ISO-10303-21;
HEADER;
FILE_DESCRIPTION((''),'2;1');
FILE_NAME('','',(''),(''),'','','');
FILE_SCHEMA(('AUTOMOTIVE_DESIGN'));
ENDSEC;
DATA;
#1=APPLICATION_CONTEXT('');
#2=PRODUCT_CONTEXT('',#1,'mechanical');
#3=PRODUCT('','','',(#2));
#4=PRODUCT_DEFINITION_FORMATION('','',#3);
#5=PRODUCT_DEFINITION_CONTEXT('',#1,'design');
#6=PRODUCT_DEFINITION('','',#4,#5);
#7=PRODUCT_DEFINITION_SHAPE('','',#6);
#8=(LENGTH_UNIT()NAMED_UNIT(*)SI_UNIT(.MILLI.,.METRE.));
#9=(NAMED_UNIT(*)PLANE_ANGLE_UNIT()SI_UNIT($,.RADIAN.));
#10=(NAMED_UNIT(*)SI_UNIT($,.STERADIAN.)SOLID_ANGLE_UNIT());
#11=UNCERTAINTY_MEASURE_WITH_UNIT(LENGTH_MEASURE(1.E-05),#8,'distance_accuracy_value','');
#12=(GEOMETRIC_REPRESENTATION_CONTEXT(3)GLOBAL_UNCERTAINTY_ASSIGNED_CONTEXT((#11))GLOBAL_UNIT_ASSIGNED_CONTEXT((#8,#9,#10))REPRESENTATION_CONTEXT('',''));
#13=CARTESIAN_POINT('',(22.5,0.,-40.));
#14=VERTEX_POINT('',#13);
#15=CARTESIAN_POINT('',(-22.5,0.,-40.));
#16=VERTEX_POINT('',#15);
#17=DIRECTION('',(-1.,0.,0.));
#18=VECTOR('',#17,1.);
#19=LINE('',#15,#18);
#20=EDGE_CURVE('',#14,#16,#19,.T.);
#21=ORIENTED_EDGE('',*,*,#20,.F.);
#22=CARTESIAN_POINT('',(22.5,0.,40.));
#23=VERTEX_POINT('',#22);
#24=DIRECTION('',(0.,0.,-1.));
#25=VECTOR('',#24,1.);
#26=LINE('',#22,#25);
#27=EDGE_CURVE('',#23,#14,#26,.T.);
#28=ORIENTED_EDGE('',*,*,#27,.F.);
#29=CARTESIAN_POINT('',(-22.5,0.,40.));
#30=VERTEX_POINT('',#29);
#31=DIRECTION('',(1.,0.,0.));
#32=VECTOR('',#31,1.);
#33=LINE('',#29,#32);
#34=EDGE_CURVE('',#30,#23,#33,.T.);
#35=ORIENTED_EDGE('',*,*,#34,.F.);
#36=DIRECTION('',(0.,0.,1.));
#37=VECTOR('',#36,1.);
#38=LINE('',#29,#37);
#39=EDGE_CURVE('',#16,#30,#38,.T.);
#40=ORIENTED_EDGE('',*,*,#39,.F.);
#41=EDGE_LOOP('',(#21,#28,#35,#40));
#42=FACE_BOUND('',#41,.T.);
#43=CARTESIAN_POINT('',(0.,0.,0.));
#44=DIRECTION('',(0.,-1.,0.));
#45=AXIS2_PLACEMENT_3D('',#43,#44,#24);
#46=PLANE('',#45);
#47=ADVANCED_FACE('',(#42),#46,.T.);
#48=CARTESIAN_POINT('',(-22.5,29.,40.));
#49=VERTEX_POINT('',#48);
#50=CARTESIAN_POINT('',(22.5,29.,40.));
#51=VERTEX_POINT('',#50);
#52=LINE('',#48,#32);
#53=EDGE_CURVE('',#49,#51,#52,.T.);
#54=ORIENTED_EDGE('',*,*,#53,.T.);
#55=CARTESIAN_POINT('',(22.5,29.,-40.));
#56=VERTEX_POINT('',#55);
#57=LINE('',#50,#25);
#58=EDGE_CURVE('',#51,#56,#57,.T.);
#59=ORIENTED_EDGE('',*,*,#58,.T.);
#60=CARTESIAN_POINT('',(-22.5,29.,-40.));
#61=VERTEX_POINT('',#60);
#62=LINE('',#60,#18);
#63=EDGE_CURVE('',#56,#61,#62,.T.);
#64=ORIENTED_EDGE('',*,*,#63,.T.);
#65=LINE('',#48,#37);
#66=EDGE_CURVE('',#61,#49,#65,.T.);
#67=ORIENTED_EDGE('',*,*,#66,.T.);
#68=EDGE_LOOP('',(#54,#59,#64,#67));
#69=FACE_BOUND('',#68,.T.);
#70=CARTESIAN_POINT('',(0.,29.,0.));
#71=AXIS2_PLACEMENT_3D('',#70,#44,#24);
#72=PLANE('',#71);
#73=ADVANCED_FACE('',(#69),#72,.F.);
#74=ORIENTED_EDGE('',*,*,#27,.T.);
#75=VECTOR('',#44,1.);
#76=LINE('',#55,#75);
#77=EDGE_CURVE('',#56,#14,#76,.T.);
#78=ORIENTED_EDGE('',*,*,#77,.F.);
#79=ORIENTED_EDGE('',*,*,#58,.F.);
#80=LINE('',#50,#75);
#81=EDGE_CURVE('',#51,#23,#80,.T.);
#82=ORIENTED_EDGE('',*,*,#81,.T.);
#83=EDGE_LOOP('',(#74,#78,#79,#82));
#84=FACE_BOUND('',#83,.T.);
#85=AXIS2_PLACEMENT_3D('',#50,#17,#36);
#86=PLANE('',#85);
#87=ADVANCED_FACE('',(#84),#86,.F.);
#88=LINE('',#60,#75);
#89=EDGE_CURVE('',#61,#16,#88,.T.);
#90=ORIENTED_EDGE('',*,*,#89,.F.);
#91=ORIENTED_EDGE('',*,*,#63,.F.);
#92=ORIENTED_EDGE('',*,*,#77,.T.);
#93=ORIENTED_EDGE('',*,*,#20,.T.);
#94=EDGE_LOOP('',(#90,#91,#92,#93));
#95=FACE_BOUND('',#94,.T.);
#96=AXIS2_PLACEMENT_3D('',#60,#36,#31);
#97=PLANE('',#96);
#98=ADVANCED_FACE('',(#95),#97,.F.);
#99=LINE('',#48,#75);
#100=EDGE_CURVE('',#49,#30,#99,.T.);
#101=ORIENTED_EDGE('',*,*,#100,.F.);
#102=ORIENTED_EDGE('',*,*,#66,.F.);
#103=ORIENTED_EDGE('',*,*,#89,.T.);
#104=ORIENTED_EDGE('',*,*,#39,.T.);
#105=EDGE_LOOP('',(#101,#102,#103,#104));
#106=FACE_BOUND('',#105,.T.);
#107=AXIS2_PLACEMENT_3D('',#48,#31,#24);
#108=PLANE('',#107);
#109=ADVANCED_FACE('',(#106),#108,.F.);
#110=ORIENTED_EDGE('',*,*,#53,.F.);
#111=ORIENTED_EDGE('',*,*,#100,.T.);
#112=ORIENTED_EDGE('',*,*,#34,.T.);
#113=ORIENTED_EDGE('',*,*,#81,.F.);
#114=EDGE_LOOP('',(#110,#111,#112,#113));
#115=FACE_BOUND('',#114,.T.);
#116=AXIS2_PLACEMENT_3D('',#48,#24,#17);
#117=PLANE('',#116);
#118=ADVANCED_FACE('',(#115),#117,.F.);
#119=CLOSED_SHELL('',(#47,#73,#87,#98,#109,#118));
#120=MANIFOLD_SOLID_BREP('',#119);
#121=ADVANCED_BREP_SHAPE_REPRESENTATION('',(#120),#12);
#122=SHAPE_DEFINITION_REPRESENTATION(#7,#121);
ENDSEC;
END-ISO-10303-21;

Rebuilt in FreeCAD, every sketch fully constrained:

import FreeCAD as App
import Part
import Sketcher

V = App.Vector
Q = App.Units.Quantity


def add_polygon(sketch, points):
    """Adds a closed chain of lines whose ends are joined by coincident constraints."""
    first, n = sketch.GeometryCount, len(points)
    for a, b in zip(points, points[1:] + points[:1]):
        sketch.addGeometry(Part.LineSegment(App.Vector(*a, 0), App.Vector(*b, 0)), False)
    for i in range(n):
        sketch.addConstraint(Sketcher.Constraint("Coincident", first + i, 2, first + (i + 1) % n, 1))

doc = App.newDocument("Part")
body = doc.addObject("PartDesign::Body", "Body")

# Sketch on XZ plane
sketch1 = body.newObject("Sketcher::SketchObject", "Sketch")
sketch1.AttachmentSupport = (doc.getObject("XZ_Plane"), [""])
sketch1.MapMode = "FlatFace"
add_polygon(sketch1, [(-22.5, -40), (-22.5, 40), (22.5, 40), (22.5, -40)])  # lines 0-3
sketch1.addConstraint(Sketcher.Constraint("Vertical", 0))
sketch1.addConstraint(Sketcher.Constraint("Horizontal", 1))
sketch1.addConstraint(Sketcher.Constraint("Vertical", 2))
sketch1.addConstraint(Sketcher.Constraint("Horizontal", 3))
sketch1.addConstraint(Sketcher.Constraint("Symmetric", 0, 2, 2, 2, -1, 1))
sketch1.addConstraint(Sketcher.Constraint("DistanceX", 1, 1, 1, 2, Q("45 mm")))
sketch1.addConstraint(Sketcher.Constraint("DistanceY", 0, 1, 0, 2, Q("80 mm")))
pad1 = body.newObject("PartDesign::Pad", "Pad")
pad1.Profile = sketch1
pad1.Length = 29
pad1.Reversed = True

doc.recompute()
